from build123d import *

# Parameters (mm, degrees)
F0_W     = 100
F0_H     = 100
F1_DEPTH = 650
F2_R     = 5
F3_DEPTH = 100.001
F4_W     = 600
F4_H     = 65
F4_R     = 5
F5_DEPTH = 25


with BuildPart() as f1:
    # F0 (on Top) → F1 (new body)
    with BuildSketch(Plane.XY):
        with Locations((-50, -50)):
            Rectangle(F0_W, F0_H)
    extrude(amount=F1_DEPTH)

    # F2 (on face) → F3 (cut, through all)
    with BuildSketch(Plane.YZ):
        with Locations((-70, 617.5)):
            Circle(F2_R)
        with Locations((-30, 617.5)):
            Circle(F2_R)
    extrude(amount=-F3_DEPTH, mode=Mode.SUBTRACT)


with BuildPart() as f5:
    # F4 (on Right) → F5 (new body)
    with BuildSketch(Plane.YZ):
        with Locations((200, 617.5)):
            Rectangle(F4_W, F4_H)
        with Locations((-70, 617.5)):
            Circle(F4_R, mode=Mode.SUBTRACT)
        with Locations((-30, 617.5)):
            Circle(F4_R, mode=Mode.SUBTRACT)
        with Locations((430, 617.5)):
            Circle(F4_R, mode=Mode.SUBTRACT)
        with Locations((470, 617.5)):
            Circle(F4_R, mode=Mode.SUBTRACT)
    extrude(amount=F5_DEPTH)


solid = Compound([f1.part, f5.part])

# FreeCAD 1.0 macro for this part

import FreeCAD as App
import Part
import Sketcher

V = App.Vector


def add_polygon(sketch, points):
    """Adds a closed chain of lines whose ends are joined by coincident constraints."""
    first, n = sketch.GeometryCount, len(points)
    for a, b in zip(points, points[1:] + points[:1]):
        sketch.addGeometry(Part.LineSegment(App.Vector(*a, 0), App.Vector(*b, 0)), False)
    for i in range(n):
        sketch.addConstraint(Sketcher.Constraint("Coincident", first + i, 2, first + (i + 1) % n, 1))

doc = App.newDocument("Part")
body = doc.addObject("PartDesign::Body", "Body")

sketch1 = doc.addObject("Sketcher::SketchObject", "Sketch")
body.addObject(sketch1)
sketch1.AttachmentSupport = (doc.XY_Plane, [""])
sketch1.MapMode = "FlatFace"
add_polygon(sketch1, [(-100, 0), (-100, -100), (0, -100), (0, 0)])
sketch1.addConstraint(Sketcher.Constraint("Vertical", 0))
sketch1.addConstraint(Sketcher.Constraint("Horizontal", 1))
sketch1.addConstraint(Sketcher.Constraint("Vertical", 2))
sketch1.addConstraint(Sketcher.Constraint("Horizontal", 3))
sketch1.addConstraint(Sketcher.Constraint("Coincident", 2, 2, -1, 1))
sketch1.addConstraint(Sketcher.Constraint("Equal", 3, 0))
sketch1.addConstraint(Sketcher.Constraint("DistanceX", 1, 1, 1, 2, 100.0))
pad1 = doc.addObject("PartDesign::Pad", "Pad")
body.addObject(pad1)
pad1.Profile = sketch1
pad1.Length = 650

sketch2 = doc.addObject("Sketcher::SketchObject", "Sketch001")
body.addObject(sketch2)
sketch2.AttachmentSupport = (doc.YZ_Plane, [""])
sketch2.MapMode = "FlatFace"
sketch2.addGeometry(Part.Circle(V(-70, 618, 0), V(0, 0, 1), 5), False)
sketch2.addGeometry(Part.Circle(V(-30, 618, 0), V(0, 0, 1), 5), False)
sketch2.addConstraint(Sketcher.Constraint("Equal", 0, 1))
sketch2.addConstraint(Sketcher.Constraint("Horizontal", 0, 3, 1, 3))
sketch2.addConstraint(Sketcher.Constraint("Diameter", 0, 10.0))
sketch2.addConstraint(Sketcher.Constraint("DistanceX", 0, 3, -1, 1, 70.0))
sketch2.addConstraint(Sketcher.Constraint("DistanceX", 1, 3, -1, 1, 30.0))
sketch2.addConstraint(Sketcher.Constraint("DistanceY", -1, 1, 0, 3, 617.5))
pocket1 = doc.addObject("PartDesign::Pocket", "Pocket")
body.addObject(pocket1)
pocket1.Profile = sketch2
pocket1.Type = "ThroughAll"
body2 = doc.addObject("PartDesign::Body", "Body001")

sketch3 = doc.addObject("Sketcher::SketchObject", "Sketch002")
body2.addObject(sketch3)
sketch3.AttachmentSupport = (doc.getObject("YZ_Plane001"), [""])
sketch3.MapMode = "FlatFace"
add_polygon(sketch3, [(-100, 650), (-100, 585), (500, 585), (500, 650)])
sketch3.addGeometry(Part.Circle(V(-70, 618, 0), V(0, 0, 1), 5), False)
sketch3.addGeometry(Part.Circle(V(-30, 618, 0), V(0, 0, 1), 5), False)
sketch3.addGeometry(Part.Circle(V(430, 618, 0), V(0, 0, 1), 5), False)
sketch3.addGeometry(Part.Circle(V(470, 618, 0), V(0, 0, 1), 5), False)
sketch3.addConstraint(Sketcher.Constraint("Vertical", 0))
sketch3.addConstraint(Sketcher.Constraint("Horizontal", 1))
sketch3.addConstraint(Sketcher.Constraint("Vertical", 2))
sketch3.addConstraint(Sketcher.Constraint("Horizontal", 3))
sketch3.addConstraint(Sketcher.Constraint("Equal", 4, 5))
sketch3.addConstraint(Sketcher.Constraint("Equal", 5, 6))
sketch3.addConstraint(Sketcher.Constraint("Equal", 6, 7))
sketch3.addConstraint(Sketcher.Constraint("Horizontal", 4, 3, 5, 3))
sketch3.addConstraint(Sketcher.Constraint("Horizontal", 5, 3, 6, 3))
sketch3.addConstraint(Sketcher.Constraint("Horizontal", 6, 3, 7, 3))
sketch3.addConstraint(Sketcher.Constraint("Diameter", 4, 10.0))
sketch3.addConstraint(Sketcher.Constraint("DistanceX", 1, 1, 1, 2, 600.0))
sketch3.addConstraint(Sketcher.Constraint("DistanceY", 0, 2, 0, 1, 65.0))
sketch3.addConstraint(Sketcher.Constraint("DistanceX", 4, 3, -1, 1, 70.0))
sketch3.addConstraint(Sketcher.Constraint("DistanceX", 5, 3, -1, 1, 30.0))
sketch3.addConstraint(Sketcher.Constraint("DistanceX", -1, 1, 6, 3, 430.0))
sketch3.addConstraint(Sketcher.Constraint("DistanceX", -1, 1, 7, 3, 470.0))
sketch3.addConstraint(Sketcher.Constraint("DistanceX", 0, 2, -1, 1, 100.0))
sketch3.addConstraint(Sketcher.Constraint("DistanceY", -1, 1, 0, 2, 585.0))
sketch3.addConstraint(Sketcher.Constraint("DistanceY", -1, 1, 4, 3, 617.5))
pad2 = doc.addObject("PartDesign::Pad", "Pad001")
body2.addObject(pad2)
pad2.Profile = sketch3
pad2.Length = 25

doc.recompute()
